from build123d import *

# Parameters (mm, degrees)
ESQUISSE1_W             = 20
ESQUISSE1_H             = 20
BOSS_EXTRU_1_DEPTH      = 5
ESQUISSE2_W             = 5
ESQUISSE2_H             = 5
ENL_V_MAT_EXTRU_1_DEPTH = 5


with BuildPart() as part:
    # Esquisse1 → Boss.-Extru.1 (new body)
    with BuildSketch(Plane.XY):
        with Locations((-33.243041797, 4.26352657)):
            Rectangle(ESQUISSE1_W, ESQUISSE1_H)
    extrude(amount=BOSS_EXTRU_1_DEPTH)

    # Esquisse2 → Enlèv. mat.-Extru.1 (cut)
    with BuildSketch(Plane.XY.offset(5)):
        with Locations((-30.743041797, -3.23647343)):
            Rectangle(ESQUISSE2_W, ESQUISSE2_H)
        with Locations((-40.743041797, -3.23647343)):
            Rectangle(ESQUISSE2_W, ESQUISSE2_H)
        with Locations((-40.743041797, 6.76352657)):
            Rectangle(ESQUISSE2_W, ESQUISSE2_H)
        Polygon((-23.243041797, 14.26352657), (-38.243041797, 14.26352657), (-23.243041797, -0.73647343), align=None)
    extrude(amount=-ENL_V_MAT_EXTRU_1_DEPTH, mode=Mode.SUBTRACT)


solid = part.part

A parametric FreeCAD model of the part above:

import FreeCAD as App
import Part
import Sketcher
from FreeCAD import Vector

doc = App.newDocument("Part")
body = doc.addObject("PartDesign::Body", "Body")

sketch1 = body.newObject("Sketcher::SketchObject", "Sketch")
sketch1.AttachmentSupport = (doc.getObject("XY_Plane"), [""])
sketch1.MapMode = "FlatFace"
sketch1.addGeometry(Part.LineSegment(Vector(-43, 14, 0), Vector(-43, -6, 0)), False)
sketch1.addGeometry(Part.LineSegment(Vector(-43, -6, 0), Vector(-23, -6, 0)), False)
sketch1.addGeometry(Part.LineSegment(Vector(-23, -6, 0), Vector(-23, 14, 0)), False)
sketch1.addGeometry(Part.LineSegment(Vector(-23, 14, 0), Vector(-43, 14, 0)), False)
sketch1.addConstraint(Sketcher.Constraint("Coincident", 0, 2, 1, 1))
sketch1.addConstraint(Sketcher.Constraint("Coincident", 1, 2, 2, 1))
sketch1.addConstraint(Sketcher.Constraint("Coincident", 2, 2, 3, 1))
sketch1.addConstraint(Sketcher.Constraint("Coincident", 3, 2, 0, 1))
sketch1.addConstraint(Sketcher.Constraint("Vertical", 0))
sketch1.addConstraint(Sketcher.Constraint("Horizontal", 1))
sketch1.addConstraint(Sketcher.Constraint("Vertical", 2))
sketch1.addConstraint(Sketcher.Constraint("Horizontal", 3))
sketch1.addConstraint(Sketcher.Constraint("Equal", 3, 0))
sketch1.addConstraint(Sketcher.Constraint("DistanceX", 1, 1, 1, 2, 20.0))
sketch1.addConstraint(Sketcher.Constraint("DistanceX", 0, 2, -1, 1, 43.243042))
sketch1.addConstraint(Sketcher.Constraint("DistanceY", 0, 2, -1, 1, 5.736473))
pad1 = body.newObject("PartDesign::Pad", "Pad")
pad1.Profile = sketch1
pad1.Length = 5

sketch2 = body.newObject("Sketcher::SketchObject", "Sketch001")
sketch2.AttachmentSupport = (doc.getObject("XY_Plane"), [""])
sketch2.MapMode = "FlatFace"
sketch2.AttachmentOffset = App.Placement(Vector(0, 0, 5), App.Rotation())
sketch2.addGeometry(Part.LineSegment(Vector(-33.2, -0.7, 0), Vector(-33.2, -5.7, 0)), False)
sketch2.addGeometry(Part.LineSegment(Vector(-33.2, -5.7, 0), Vector(-28.2, -5.7, 0)), False)
sketch2.addGeometry(Part.LineSegment(Vector(-28.2, -5.7, 0), Vector(-28.2, -0.7, 0)), False)
sketch2.addGeometry(Part.LineSegment(Vector(-28.2, -0.7, 0), Vector(-33.2, -0.7, 0)), False)
sketch2.addGeometry(Part.LineSegment(Vector(-43.2, -0.7, 0), Vector(-43.2, -5.7, 0)), False)
sketch2.addGeometry(Part.LineSegment(Vector(-43.2, -5.7, 0), Vector(-38.2, -5.7, 0)), False)
sketch2.addGeometry(Part.LineSegment(Vector(-38.2, -5.7, 0), Vector(-38.2, -0.7, 0)), False)
sketch2.addGeometry(Part.LineSegment(Vector(-38.2, -0.7, 0), Vector(-43.2, -0.7, 0)), False)
sketch2.addGeometry(Part.LineSegment(Vector(-43.2, 9.3, 0), Vector(-43.2, 4.3, 0)), False)
sketch2.addGeometry(Part.LineSegment(Vector(-43.2, 4.3, 0), Vector(-38.2, 4.3, 0)), False)
sketch2.addGeometry(Part.LineSegment(Vector(-38.2, 4.3, 0), Vector(-38.2, 9.3, 0)), False)
sketch2.addGeometry(Part.LineSegment(Vector(-38.2, 9.3, 0), Vector(-43.2, 9.3, 0)), False)
sketch2.addGeometry(Part.LineSegment(Vector(-23.2, 14.3, 0), Vector(-38.2, 14.3, 0)), False)
sketch2.addGeometry(Part.LineSegment(Vector(-38.2, 14.3, 0), Vector(-23.2, -0.7, 0)), False)
sketch2.addGeometry(Part.LineSegment(Vector(-23.2, -0.7, 0), Vector(-23.2, 14.3, 0)), False)
sketch2.addConstraint(Sketcher.Constraint("Coincident", 0, 2, 1, 1))
sketch2.addConstraint(Sketcher.Constraint("Coincident", 1, 2, 2, 1))
sketch2.addConstraint(Sketcher.Constraint("Coincident", 2, 2, 3, 1))
sketch2.addConstraint(Sketcher.Constraint("Coincident", 3, 2, 0, 1))
sketch2.addConstraint(Sketcher.Constraint("Coincident", 4, 2, 5, 1))
sketch2.addConstraint(Sketcher.Constraint("Coincident", 5, 2, 6, 1))
sketch2.addConstraint(Sketcher.Constraint("Coincident", 6, 2, 7, 1))
sketch2.addConstraint(Sketcher.Constraint("Coincident", 7, 2, 4, 1))
sketch2.addConstraint(Sketcher.Constraint("Coincident", 8, 2, 9, 1))
sketch2.addConstraint(Sketcher.Constraint("Coincident", 9, 2, 10, 1))
sketch2.addConstraint(Sketcher.Constraint("Coincident", 10, 2, 11, 1))
sketch2.addConstraint(Sketcher.Constraint("Coincident", 11, 2, 8, 1))
sketch2.addConstraint(Sketcher.Constraint("Coincident", 12, 2, 13, 1))
sketch2.addConstraint(Sketcher.Constraint("Coincident", 13, 2, 14, 1))
sketch2.addConstraint(Sketcher.Constraint("Coincident", 14, 2, 12, 1))
sketch2.addConstraint(Sketcher.Constraint("Vertical", 0))
sketch2.addConstraint(Sketcher.Constraint("Horizontal", 1))
sketch2.addConstraint(Sketcher.Constraint("Vertical", 2))
sketch2.addConstraint(Sketcher.Constraint("Horizontal", 3))
sketch2.addConstraint(Sketcher.Constraint("Vertical", 4))
sketch2.addConstraint(Sketcher.Constraint("Horizontal", 5))
sketch2.addConstraint(Sketcher.Constraint("Vertical", 6))
sketch2.addConstraint(Sketcher.Constraint("Horizontal", 7))
sketch2.addConstraint(Sketcher.Constraint("Vertical", 8))
sketch2.addConstraint(Sketcher.Constraint("Horizontal", 9))
sketch2.addConstraint(Sketcher.Constraint("Vertical", 10))
sketch2.addConstraint(Sketcher.Constraint("Horizontal", 11))
sketch2.addConstraint(Sketcher.Constraint("Horizontal", 12))
sketch2.addConstraint(Sketcher.Constraint("Vertical", 14))
sketch2.addConstraint(Sketcher.Constraint("Horizontal", 1, 2, 4, 2))
sketch2.addConstraint(Sketcher.Constraint("Horizontal", 3, 2, 6, 2))
sketch2.addConstraint(Sketcher.Constraint("Horizontal", 7, 2, 13, 2))
sketch2.addConstraint(Sketcher.Constraint("Vertical", 7, 2, 8, 2))
sketch2.addConstraint(Sketcher.Constraint("Vertical", 6, 2, 9, 2))
sketch2.addConstraint(Sketcher.Constraint("Vertical", 10, 2, 12, 2))
sketch2.addConstraint(Sketcher.Constraint("Equal", 3, 5))
sketch2.addConstraint(Sketcher.Constraint("Equal", 11, 0))
sketch2.addConstraint(Sketcher.Constraint("Equal", 6, 8))
sketch2.addConstraint(Sketcher.Constraint("Equal", 12, 14))
sketch2.addConstraint(Sketcher.Constraint("DistanceX", 1, 1, 1, 2, 5.0))
sketch2.addConstraint(Sketcher.Constraint("DistanceX", 12, 2, 12, 1, 15.0))
sketch2.addConstraint(Sketcher.Constraint("DistanceX", 4, 2, 0, 2, 10.0))
sketch2.addConstraint(Sketcher.Constraint("DistanceY", 7, 2, 8, 2, 5.0))
sketch2.addConstraint(Sketcher.Constraint("DistanceX", 0, 2, -1, 1, 33.243042))
sketch2.addConstraint(Sketcher.Constraint("DistanceY", 0, 2, -1, 1, 5.736473))
pocket1 = body.newObject("PartDesign::Pocket", "Pocket")
pocket1.Profile = sketch2
pocket1.Length = 5

doc.recompute()
